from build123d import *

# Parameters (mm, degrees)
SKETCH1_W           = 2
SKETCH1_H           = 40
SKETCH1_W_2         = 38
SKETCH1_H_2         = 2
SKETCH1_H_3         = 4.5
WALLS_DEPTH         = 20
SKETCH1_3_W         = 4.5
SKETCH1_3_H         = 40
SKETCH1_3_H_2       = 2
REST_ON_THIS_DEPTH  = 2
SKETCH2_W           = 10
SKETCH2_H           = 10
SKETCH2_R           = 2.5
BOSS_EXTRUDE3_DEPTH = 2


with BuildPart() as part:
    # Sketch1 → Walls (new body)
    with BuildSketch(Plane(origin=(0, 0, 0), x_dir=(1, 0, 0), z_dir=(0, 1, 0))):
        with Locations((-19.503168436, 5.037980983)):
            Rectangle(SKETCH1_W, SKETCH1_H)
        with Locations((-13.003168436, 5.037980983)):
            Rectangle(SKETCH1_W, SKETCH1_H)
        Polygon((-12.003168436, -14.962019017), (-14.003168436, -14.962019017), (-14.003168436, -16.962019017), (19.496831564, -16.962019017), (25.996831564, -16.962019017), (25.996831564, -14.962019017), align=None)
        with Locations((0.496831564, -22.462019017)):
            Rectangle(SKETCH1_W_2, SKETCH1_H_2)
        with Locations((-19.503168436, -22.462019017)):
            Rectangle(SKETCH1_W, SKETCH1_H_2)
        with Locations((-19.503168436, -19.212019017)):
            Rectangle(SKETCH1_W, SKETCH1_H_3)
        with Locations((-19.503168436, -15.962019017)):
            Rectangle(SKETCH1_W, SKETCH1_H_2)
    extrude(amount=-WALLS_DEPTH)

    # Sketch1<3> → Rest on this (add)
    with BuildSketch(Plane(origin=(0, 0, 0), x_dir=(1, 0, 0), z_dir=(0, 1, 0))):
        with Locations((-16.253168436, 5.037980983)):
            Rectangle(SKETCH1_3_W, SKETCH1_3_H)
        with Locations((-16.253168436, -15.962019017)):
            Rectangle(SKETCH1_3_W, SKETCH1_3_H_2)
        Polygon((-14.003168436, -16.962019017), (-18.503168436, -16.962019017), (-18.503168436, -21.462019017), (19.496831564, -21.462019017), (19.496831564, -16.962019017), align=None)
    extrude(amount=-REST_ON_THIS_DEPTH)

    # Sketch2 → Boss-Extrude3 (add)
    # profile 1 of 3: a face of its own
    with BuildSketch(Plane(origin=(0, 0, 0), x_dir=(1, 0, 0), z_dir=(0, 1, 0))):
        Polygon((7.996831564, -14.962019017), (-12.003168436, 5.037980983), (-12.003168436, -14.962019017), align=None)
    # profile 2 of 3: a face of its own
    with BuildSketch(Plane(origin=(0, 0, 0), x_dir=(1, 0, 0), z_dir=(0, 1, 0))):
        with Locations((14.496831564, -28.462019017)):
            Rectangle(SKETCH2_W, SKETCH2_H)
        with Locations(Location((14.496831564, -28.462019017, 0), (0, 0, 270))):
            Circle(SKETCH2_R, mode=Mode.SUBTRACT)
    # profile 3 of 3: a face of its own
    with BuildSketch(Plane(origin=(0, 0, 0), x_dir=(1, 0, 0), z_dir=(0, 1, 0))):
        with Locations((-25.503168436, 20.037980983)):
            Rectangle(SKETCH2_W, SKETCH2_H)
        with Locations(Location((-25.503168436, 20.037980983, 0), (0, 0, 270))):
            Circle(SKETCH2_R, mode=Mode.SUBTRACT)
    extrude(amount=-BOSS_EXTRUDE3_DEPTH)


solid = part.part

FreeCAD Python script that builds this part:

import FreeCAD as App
import Part
import Sketcher

V = App.Vector
Q = App.Units.Quantity

doc = App.newDocument("Part")
body = doc.addObject("PartDesign::Body", "Body")
body.AllowCompound = True

sketch1 = body.newObject("Sketcher::SketchObject", "Sketch")
sketch1.AttachmentSupport = (doc.getObject("XZ_Plane"), [""])
sketch1.MapMode = "FlatFace"
sketch1.addGeometry([
    Part.LineSegment(V(-20.5, -25, 0), V(-20.5, 23.5, 0)),
    Part.LineSegment(V(-20.5, 23.5, 0), V(19.5, 23.5, 0)),
    Part.LineSegment(V(19.5, 23.5, 0), V(19.5, 21.5, 0)),
    Part.LineSegment(V(19.5, 21.5, 0), V(-18.5, 21.5, 0)),
    Part.LineSegment(V(-18.5, 21.5, 0), V(-18.5, -25, 0)),
    Part.LineSegment(V(-18.5, -25, 0), V(-20.5, -25, 0)),
    Part.LineSegment(V(-14, -25, 0), V(-14, 17, 0)),
    Part.LineSegment(V(-14, 17, 0), V(26, 17, 0)),
    Part.LineSegment(V(26, 17, 0), V(26, 15, 0)),
    Part.LineSegment(V(26, 15, 0), V(-12, 15, 0)),
    Part.LineSegment(V(-12, 15, 0), V(-12, -25, 0)),
    Part.LineSegment(V(-12, -25, 0), V(-14, -25, 0)),
], False)
sketch1.addConstraint([
    Sketcher.Constraint("Coincident", 0, 2, 1, 1),
    Sketcher.Constraint("Coincident", 1, 2, 2, 1),
    Sketcher.Constraint("Coincident", 2, 2, 3, 1),
    Sketcher.Constraint("Coincident", 3, 2, 4, 1),
    Sketcher.Constraint("Coincident", 4, 2, 5, 1),
    Sketcher.Constraint("Coincident", 5, 2, 0, 1),
    Sketcher.Constraint("Coincident", 6, 2, 7, 1),
    Sketcher.Constraint("Coincident", 7, 2, 8, 1),
    Sketcher.Constraint("Coincident", 8, 2, 9, 1),
    Sketcher.Constraint("Coincident", 9, 2, 10, 1),
    Sketcher.Constraint("Coincident", 10, 2, 11, 1),
    Sketcher.Constraint("Coincident", 11, 2, 6, 1),
    Sketcher.Constraint("Vertical", 0),
    Sketcher.Constraint("Horizontal", 1),
    Sketcher.Constraint("Vertical", 2),
    Sketcher.Constraint("Horizontal", 3),
    Sketcher.Constraint("Vertical", 4),
    Sketcher.Constraint("Horizontal", 5),
    Sketcher.Constraint("Vertical", 6),
    Sketcher.Constraint("Horizontal", 7),
    Sketcher.Constraint("Vertical", 8),
    Sketcher.Constraint("Horizontal", 9),
    Sketcher.Constraint("Vertical", 10),
    Sketcher.Constraint("Horizontal", 11),
    Sketcher.Constraint("Horizontal", 5, 2, 10, 2),
    Sketcher.Constraint("Equal", 1, 7),
    Sketcher.Constraint("Equal", 3, 9),
    Sketcher.Constraint("Equal", 11, 2),
    Sketcher.Constraint("Equal", 2, 8),
    Sketcher.Constraint("Equal", 7, 10),
    Sketcher.Constraint("DistanceX", 1, 1, 1, 2, Q("40 mm")),
    Sketcher.Constraint("DistanceX", 3, 2, 3, 1, Q("38 mm")),
    Sketcher.Constraint("DistanceY", 0, 1, 0, 2, Q("48.5 mm")),
    Sketcher.Constraint("DistanceX", 3, 2, 6, 2, Q("4.5 mm")),
    Sketcher.Constraint("DistanceX", 0, 2, -1, 1, Q("20.503168 mm")),
    Sketcher.Constraint("DistanceY", -1, 1, 0, 2, Q("23.462019 mm")),
])
pad1 = body.newObject("PartDesign::Pad", "Pad")
pad1.Profile = sketch1
pad1.Length = 20

sketch2 = body.newObject("Sketcher::SketchObject", "Sketch001")
sketch2.AttachmentSupport = (doc.getObject("XZ_Plane"), [""])
sketch2.MapMode = "FlatFace"
sketch2.addGeometry([
    Part.LineSegment(V(-18.5, -25, 0), V(-18.5, 21.5, 0)),
    Part.LineSegment(V(-18.5, 21.5, 0), V(19.5, 21.5, 0)),
    Part.LineSegment(V(19.5, 21.5, 0), V(19.5, 17, 0)),
    Part.LineSegment(V(19.5, 17, 0), V(-14, 17, 0)),
    Part.LineSegment(V(-14, 17, 0), V(-14, -25, 0)),
    Part.LineSegment(V(-14, -25, 0), V(-18.5, -25, 0)),
], False)
sketch2.addConstraint([
    Sketcher.Constraint("Coincident", 0, 2, 1, 1),
    Sketcher.Constraint("Coincident", 1, 2, 2, 1),
    Sketcher.Constraint("Coincident", 2, 2, 3, 1),
    Sketcher.Constraint("Coincident", 3, 2, 4, 1),
    Sketcher.Constraint("Coincident", 4, 2, 5, 1),
    Sketcher.Constraint("Coincident", 5, 2, 0, 1),
    Sketcher.Constraint("Vertical", 0),
    Sketcher.Constraint("Horizontal", 1),
    Sketcher.Constraint("Vertical", 2),
    Sketcher.Constraint("Horizontal", 3),
    Sketcher.Constraint("Vertical", 4),
    Sketcher.Constraint("Horizontal", 5),
    Sketcher.Constraint("Equal", 5, 2),
    Sketcher.Constraint("DistanceX", 1, 1, 1, 2, Q("38 mm")),
    Sketcher.Constraint("DistanceY", 4, 2, 4, 1, Q("42 mm")),
    Sketcher.Constraint("DistanceX", 3, 2, 3, 1, Q("33.5 mm")),
    Sketcher.Constraint("DistanceX", 0, 2, -1, 1, Q("18.503168 mm")),
    Sketcher.Constraint("DistanceY", -1, 1, 0, 2, Q("21.462019 mm")),
])
pad2 = body.newObject("PartDesign::Pad", "Pad001")
pad2.Profile = sketch2
pad2.Length = 2

sketch3 = body.newObject("Sketcher::SketchObject", "Sketch002")
sketch3.AttachmentSupport = (doc.getObject("XZ_Plane"), [""])
sketch3.MapMode = "FlatFace"
sketch3.addGeometry([
    Part.LineSegment(V(8, 15, 0), V(-12, -5, 0)),
    Part.LineSegment(V(-12, -5, 0), V(-12, 15, 0)),
    Part.LineSegment(V(-12, 15, 0), V(8, 15, 0)),
    Part.LineSegment(V(9.5, 23.5, 0), V(9.5, 33.5, 0)),
    Part.LineSegment(V(9.5, 33.5, 0), V(19.5, 33.5, 0)),
    Part.LineSegment(V(19.5, 33.5, 0), V(19.5, 23.5, 0)),
    Part.LineSegment(V(19.5, 23.5, 0), V(9.5, 23.5, 0)),
    Part.Circle(V(14.5, 28.5, 0), V(0, 0, 1), 2.5),
    Part.LineSegment(V(-30.5, -25, 0), V(-30.5, -15, 0)),
    Part.LineSegment(V(-30.5, -15, 0), V(-20.5, -15, 0)),
    Part.LineSegment(V(-20.5, -15, 0), V(-20.5, -25, 0)),
    Part.LineSegment(V(-20.5, -25, 0), V(-30.5, -25, 0)),
    Part.Circle(V(-25.5, -20, 0), V(0, 0, 1), 2.5),
], False)
sketch3.addConstraint([
    Sketcher.Constraint("Coincident", 0, 2, 1, 1),
    Sketcher.Constraint("Coincident", 1, 2, 2, 1),
    Sketcher.Constraint("Coincident", 2, 2, 0, 1),
    Sketcher.Constraint("Coincident", 3, 2, 4, 1),
    Sketcher.Constraint("Coincident", 4, 2, 5, 1),
    Sketcher.Constraint("Coincident", 5, 2, 6, 1),
    Sketcher.Constraint("Coincident", 6, 2, 3, 1),
    Sketcher.Constraint("Coincident", 8, 2, 9, 1),
    Sketcher.Constraint("Coincident", 9, 2, 10, 1),
    Sketcher.Constraint("Coincident", 10, 2, 11, 1),
    Sketcher.Constraint("Coincident", 11, 2, 8, 1),
    Sketcher.Constraint("Vertical", 1),
    Sketcher.Constraint("Horizontal", 2),
    Sketcher.Constraint("Vertical", 3),
    Sketcher.Constraint("Horizontal", 4),
    Sketcher.Constraint("Vertical", 5),
    Sketcher.Constraint("Horizontal", 6),
    Sketcher.Constraint("Vertical", 8),
    Sketcher.Constraint("Horizontal", 9),
    Sketcher.Constraint("Vertical", 10),
    Sketcher.Constraint("Horizontal", 11),
    Sketcher.Constraint("Equal", 7, 12),
    Sketcher.Constraint("Equal", 6, 9),
    Sketcher.Constraint("Equal", 2, 1),
    Sketcher.Constraint("Equal", 11, 3),
    Sketcher.Constraint("Equal", 5, 8),
    Sketcher.Constraint("Diameter", 7, Q("5 mm")),
    Sketcher.Constraint("DistanceX", 2, 1, 2, 2, Q("20 mm")),
    Sketcher.Constraint("DistanceX", 4, 1, 4, 2, Q("10 mm")),
    Sketcher.Constraint("DistanceX", 12, 3, 7, 3, Q("40 mm")),
    Sketcher.Constraint("DistanceY", 12, 3, 0, 2, Q("15 mm")),
    Sketcher.Constraint("DistanceX", 3, 2, 7, 3, Q("5 mm")),
    Sketcher.Constraint("DistanceY", 7, 3, 3, 2, Q("5 mm")),
    Sketcher.Constraint("DistanceX", 8, 2, 12, 3, Q("5 mm")),
    Sketcher.Constraint("DistanceY", 12, 3, 8, 2, Q("5 mm")),
    Sketcher.Constraint("DistanceY", 12, 3, 7, 3, Q("48.5 mm")),
    Sketcher.Constraint("DistanceX", 12, 3, 0, 2, Q("13.5 mm")),
    Sketcher.Constraint("DistanceX", -1, 1, 7, 3, Q("14.496832 mm")),
    Sketcher.Constraint("DistanceY", -1, 1, 7, 3, Q("28.462019 mm")),
])
pad3 = body.newObject("PartDesign::Pad", "Pad002")
pad3.Profile = sketch3
pad3.Length = 2

doc.recompute()
